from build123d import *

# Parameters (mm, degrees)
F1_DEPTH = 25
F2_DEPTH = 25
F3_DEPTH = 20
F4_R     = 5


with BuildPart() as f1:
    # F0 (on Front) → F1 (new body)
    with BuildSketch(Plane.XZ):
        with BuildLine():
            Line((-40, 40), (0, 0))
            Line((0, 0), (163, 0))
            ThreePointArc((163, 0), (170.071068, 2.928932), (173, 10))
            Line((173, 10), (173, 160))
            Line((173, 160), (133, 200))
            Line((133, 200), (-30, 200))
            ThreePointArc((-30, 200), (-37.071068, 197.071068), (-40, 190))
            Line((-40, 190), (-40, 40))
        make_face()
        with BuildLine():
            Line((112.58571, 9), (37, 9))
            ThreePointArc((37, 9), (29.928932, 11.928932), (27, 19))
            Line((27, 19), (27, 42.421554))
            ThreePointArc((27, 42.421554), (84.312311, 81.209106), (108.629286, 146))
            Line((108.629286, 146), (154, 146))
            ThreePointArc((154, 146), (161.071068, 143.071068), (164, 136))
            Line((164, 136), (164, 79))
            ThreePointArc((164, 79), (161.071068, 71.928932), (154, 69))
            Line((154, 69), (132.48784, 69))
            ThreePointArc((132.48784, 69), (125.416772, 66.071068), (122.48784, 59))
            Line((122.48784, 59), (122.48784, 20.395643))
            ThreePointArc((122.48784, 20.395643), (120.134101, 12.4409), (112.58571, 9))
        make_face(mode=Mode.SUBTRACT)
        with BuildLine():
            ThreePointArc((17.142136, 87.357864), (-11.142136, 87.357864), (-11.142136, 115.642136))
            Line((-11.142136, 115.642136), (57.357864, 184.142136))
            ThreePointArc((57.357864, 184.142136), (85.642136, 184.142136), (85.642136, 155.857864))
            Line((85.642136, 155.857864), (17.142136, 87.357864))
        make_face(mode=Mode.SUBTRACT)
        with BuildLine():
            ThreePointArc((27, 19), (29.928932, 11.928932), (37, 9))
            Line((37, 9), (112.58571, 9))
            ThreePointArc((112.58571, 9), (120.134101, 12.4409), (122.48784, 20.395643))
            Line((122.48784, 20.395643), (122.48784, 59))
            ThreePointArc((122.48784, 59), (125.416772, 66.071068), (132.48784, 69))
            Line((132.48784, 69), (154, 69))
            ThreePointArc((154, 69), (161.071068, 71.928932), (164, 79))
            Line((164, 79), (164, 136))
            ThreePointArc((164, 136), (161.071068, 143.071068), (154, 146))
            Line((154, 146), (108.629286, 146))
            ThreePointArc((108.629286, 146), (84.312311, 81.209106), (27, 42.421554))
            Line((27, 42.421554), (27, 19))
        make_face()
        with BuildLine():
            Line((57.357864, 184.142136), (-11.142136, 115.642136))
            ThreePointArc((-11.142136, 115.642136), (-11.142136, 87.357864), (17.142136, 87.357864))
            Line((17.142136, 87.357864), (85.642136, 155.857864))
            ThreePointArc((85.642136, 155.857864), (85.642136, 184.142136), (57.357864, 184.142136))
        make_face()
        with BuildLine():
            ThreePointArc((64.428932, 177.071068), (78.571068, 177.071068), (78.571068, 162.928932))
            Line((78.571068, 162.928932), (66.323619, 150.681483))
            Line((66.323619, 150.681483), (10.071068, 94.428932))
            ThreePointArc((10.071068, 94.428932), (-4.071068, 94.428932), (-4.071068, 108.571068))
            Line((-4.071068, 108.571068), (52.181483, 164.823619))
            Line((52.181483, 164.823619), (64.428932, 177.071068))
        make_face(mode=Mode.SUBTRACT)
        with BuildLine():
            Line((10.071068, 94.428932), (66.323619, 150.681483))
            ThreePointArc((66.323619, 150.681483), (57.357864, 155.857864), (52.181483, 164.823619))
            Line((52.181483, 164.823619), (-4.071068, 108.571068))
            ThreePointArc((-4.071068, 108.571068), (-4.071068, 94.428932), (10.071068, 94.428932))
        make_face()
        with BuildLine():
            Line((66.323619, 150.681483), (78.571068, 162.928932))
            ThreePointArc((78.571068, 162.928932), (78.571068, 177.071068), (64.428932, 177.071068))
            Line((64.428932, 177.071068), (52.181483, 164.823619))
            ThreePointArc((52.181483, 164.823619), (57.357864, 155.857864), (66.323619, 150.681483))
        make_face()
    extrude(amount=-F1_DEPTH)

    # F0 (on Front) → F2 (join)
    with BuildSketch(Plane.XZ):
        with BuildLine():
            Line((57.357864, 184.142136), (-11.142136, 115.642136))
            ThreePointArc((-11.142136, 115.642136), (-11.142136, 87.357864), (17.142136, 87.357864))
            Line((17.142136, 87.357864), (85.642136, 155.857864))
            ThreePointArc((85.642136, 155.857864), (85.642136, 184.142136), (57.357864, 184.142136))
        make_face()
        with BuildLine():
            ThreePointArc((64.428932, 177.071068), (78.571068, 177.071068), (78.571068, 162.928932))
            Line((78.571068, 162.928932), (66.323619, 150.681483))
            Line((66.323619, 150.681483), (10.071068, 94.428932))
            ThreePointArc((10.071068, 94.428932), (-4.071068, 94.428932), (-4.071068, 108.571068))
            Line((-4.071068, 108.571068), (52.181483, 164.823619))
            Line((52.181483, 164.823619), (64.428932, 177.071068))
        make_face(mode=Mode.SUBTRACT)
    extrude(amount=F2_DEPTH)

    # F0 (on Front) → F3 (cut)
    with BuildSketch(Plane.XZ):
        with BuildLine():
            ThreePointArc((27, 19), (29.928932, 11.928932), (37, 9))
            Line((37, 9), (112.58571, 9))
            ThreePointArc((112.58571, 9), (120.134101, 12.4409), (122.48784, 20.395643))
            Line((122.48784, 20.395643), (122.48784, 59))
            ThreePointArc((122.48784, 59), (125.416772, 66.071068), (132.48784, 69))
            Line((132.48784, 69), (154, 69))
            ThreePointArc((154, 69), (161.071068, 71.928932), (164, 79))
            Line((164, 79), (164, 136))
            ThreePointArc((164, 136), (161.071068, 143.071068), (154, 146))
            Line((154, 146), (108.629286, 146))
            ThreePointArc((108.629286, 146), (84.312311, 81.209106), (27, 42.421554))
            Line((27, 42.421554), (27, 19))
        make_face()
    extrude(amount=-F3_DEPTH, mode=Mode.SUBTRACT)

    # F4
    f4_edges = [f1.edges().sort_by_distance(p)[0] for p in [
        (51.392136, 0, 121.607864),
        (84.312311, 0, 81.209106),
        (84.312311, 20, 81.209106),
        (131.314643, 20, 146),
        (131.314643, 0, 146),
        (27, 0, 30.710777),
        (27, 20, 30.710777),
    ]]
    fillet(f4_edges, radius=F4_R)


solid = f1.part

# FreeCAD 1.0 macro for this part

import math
import FreeCAD as App
import Part
import Sketcher
Q = App.Units.Quantity


def edges_at(feature, points):
    """Names of the edges that pass closest to the given points."""
    edges = feature.Shape.Edges
    near = lambda p: min(range(len(edges)), key=lambda i: edges[i].distToShape(Part.Vertex(*p))[0])
    return sorted({f"Edge{near(p) + 1}" for p in points})

doc = App.newDocument("Part")
body = doc.addObject("PartDesign::Body", "Body")

# Sketch on XZ plane
sketch1 = body.newObject("Sketcher::SketchObject", "Sketch")
sketch1.AttachmentSupport = (doc.getObject("XZ_Plane"), [""])
sketch1.MapMode = "FlatFace"
sketch1.addGeometry(Part.LineSegment(App.Vector(-40, 40, 0), App.Vector(0, 0, 0)), False)
sketch1.addGeometry(Part.LineSegment(App.Vector(0, 0, 0), App.Vector(163, 0, 0)), False)
sketch1.addGeometry(Part.ArcOfCircle(Part.Circle(App.Vector(163, 10, 0), App.Vector(0, 0, 1), 10), math.radians(-90), math.radians(0)), False)
sketch1.addGeometry(Part.LineSegment(App.Vector(173, 10, 0), App.Vector(173, 160, 0)), False)
sketch1.addGeometry(Part.LineSegment(App.Vector(173, 160, 0), App.Vector(133, 200, 0)), False)
sketch1.addGeometry(Part.LineSegment(App.Vector(133, 200, 0), App.Vector(-30, 200, 0)), False)
sketch1.addGeometry(Part.ArcOfCircle(Part.Circle(App.Vector(-30, 190, 0), App.Vector(0, 0, 1), 10), math.radians(90), math.radians(180)), False)
sketch1.addGeometry(Part.LineSegment(App.Vector(-40, 190, 0), App.Vector(-40, 40, 0)), False)
sketch1.addConstraint(Sketcher.Constraint("Coincident", 0, 2, 1, 1))
sketch1.addConstraint(Sketcher.Constraint("Tangent", 1, 2, 2, 1))
sketch1.addConstraint(Sketcher.Constraint("Tangent", 2, 2, 3, 1))
sketch1.addConstraint(Sketcher.Constraint("Coincident", 3, 2, 4, 1))
sketch1.addConstraint(Sketcher.Constraint("Coincident", 4, 2, 5, 1))
sketch1.addConstraint(Sketcher.Constraint("Tangent", 5, 2, 6, 1))
sketch1.addConstraint(Sketcher.Constraint("Tangent", 6, 2, 7, 1))
sketch1.addConstraint(Sketcher.Constraint("Coincident", 7, 2, 0, 1))
sketch1.addConstraint(Sketcher.Constraint("Horizontal", 1))
sketch1.addConstraint(Sketcher.Constraint("Vertical", 3))
sketch1.addConstraint(Sketcher.Constraint("Horizontal", 5))
sketch1.addConstraint(Sketcher.Constraint("Vertical", 7))
sketch1.addConstraint(Sketcher.Constraint("Coincident", 0, 2, -1, 1))
sketch1.addConstraint(Sketcher.Constraint("Equal", 2, 6))
sketch1.addConstraint(Sketcher.Constraint("Parallel", 0, 4))
sketch1.addConstraint(Sketcher.Constraint("Equal", 1, 5))
sketch1.addConstraint(Sketcher.Constraint("Radius", 2, 9.999999))
sketch1.addConstraint(Sketcher.Constraint("DistanceX", 1, 1, 1, 2, 163.0))
sketch1.addConstraint(Sketcher.Constraint("DistanceY", 3, 1, 3, 2, 150.0))
sketch1.addConstraint(Sketcher.Constraint("Angle", 0, Q("-45 deg")))
sketch1.addConstraint(Sketcher.Constraint("DistanceX", 6, 3, -1, 1, 30.000001))
pad1 = body.newObject("PartDesign::Pad", "Pad")
pad1.Profile = sketch1
pad1.Length = 25
pad1.Reversed = True

# Sketch on XZ plane
sketch2 = body.newObject("Sketcher::SketchObject", "Sketch001")
sketch2.AttachmentSupport = (doc.getObject("XZ_Plane"), [""])
sketch2.MapMode = "FlatFace"
sketch2.addGeometry(Part.LineSegment(App.Vector(57, 184, 0), App.Vector(-11, 116, 0)), False)
sketch2.addGeometry(Part.ArcOfCircle(Part.Circle(App.Vector(3, 102, 0), App.Vector(0, 0, 1), 20), math.radians(135), math.radians(315)), False)
sketch2.addGeometry(Part.LineSegment(App.Vector(17, 87, 0), App.Vector(86, 156, 0)), False)
sketch2.addGeometry(Part.ArcOfCircle(Part.Circle(App.Vector(72, 170, 0), App.Vector(0, 0, 1), 20), math.radians(-45), math.radians(135)), False)
sketch2.addGeometry(Part.LineSegment(App.Vector(-4, 109, 0), App.Vector(64, 177, 0)), False)
sketch2.addGeometry(Part.ArcOfCircle(Part.Circle(App.Vector(72, 170, 0), App.Vector(0, 0, 1), 10), math.radians(-45), math.radians(135)), False)
sketch2.addGeometry(Part.LineSegment(App.Vector(79, 163, 0), App.Vector(10, 94, 0)), False)
sketch2.addGeometry(Part.ArcOfCircle(Part.Circle(App.Vector(3, 102, 0), App.Vector(0, 0, 1), 10), math.radians(135), math.radians(315)), False)
sketch2.addConstraint(Sketcher.Constraint("Tangent", 0, 2, 1, 1))
sketch2.addConstraint(Sketcher.Constraint("Tangent", 1, 2, 2, 1))
sketch2.addConstraint(Sketcher.Constraint("Tangent", 2, 2, 3, 1))
sketch2.addConstraint(Sketcher.Constraint("Tangent", 3, 2, 0, 1))
sketch2.addConstraint(Sketcher.Constraint("Tangent", 4, 2, 5, 2))
sketch2.addConstraint(Sketcher.Constraint("Tangent", 5, 1, 6, 1))
sketch2.addConstraint(Sketcher.Constraint("Tangent", 6, 2, 7, 2))
sketch2.addConstraint(Sketcher.Constraint("Tangent", 7, 1, 4, 1))
sketch2.addConstraint(Sketcher.Constraint("Coincident", 5, 3, 3, 3))
sketch2.addConstraint(Sketcher.Constraint("Coincident", 7, 3, 1, 3))
sketch2.addConstraint(Sketcher.Constraint("Equal", 1, 3))
sketch2.addConstraint(Sketcher.Constraint("Equal", 5, 7))
sketch2.addConstraint(Sketcher.Constraint("Radius", 1, 20.000001))
sketch2.addConstraint(Sketcher.Constraint("Radius", 5, 10.0))
sketch2.addConstraint(Sketcher.Constraint("Angle", 0, Q("-135 deg")))
sketch2.addConstraint(Sketcher.Constraint("DistanceX", -1, 1, 1, 3, 3.0))
sketch2.addConstraint(Sketcher.Constraint("DistanceY", -1, 1, 3, 3, 170.0))
sketch2.addConstraint(Sketcher.Constraint("DistanceY", -1, 1, 1, 3, 101.5))
pad2 = body.newObject("PartDesign::Pad", "Pad001")
pad2.Profile = sketch2
pad2.Length = 25

# Sketch on XZ plane
sketch3 = body.newObject("Sketcher::SketchObject", "Sketch002")
sketch3.AttachmentSupport = (doc.getObject("XZ_Plane"), [""])
sketch3.MapMode = "FlatFace"
sketch3.addGeometry(Part.ArcOfCircle(Part.Circle(App.Vector(36.999999, 18.999999, 0), App.Vector(0, 0, 1), 9.999999), math.radians(179.999996), math.radians(270.000004)), False)
sketch3.addGeometry(Part.LineSegment(App.Vector(37, 9, 0), App.Vector(112.58571, 9, 0)), False)
sketch3.addGeometry(Part.ArcOfCircle(Part.Circle(App.Vector(112.58571, 19, 0), App.Vector(0, 0, 1), 10), math.radians(-90), math.radians(8.022636)), False)
sketch3.addGeometry(Part.LineSegment(App.Vector(122.48784, 20.395643, 0), App.Vector(122.48784, 59, 0)), False)
sketch3.addGeometry(Part.ArcOfCircle(Part.Circle(App.Vector(132.487839, 59.000001, 0), App.Vector(0, 0, 1), 9.999999), math.radians(89.999996), math.radians(180.000004)), False)
sketch3.addGeometry(Part.LineSegment(App.Vector(132.48784, 69, 0), App.Vector(154, 69, 0)), False)
sketch3.addGeometry(Part.ArcOfCircle(Part.Circle(App.Vector(154.000001, 78.999999, 0), App.Vector(0, 0, 1), 9.999999), math.radians(-90.000004), math.radians(0.000004)), False)
sketch3.addGeometry(Part.LineSegment(App.Vector(164, 79, 0), App.Vector(164, 136, 0)), False)
sketch3.addGeometry(Part.ArcOfCircle(Part.Circle(App.Vector(154.000001, 136.000001, 0), App.Vector(0, 0, 1), 9.999999), math.radians(-0.000004), math.radians(90.000004)), False)
sketch3.addGeometry(Part.LineSegment(App.Vector(154, 146, 0), App.Vector(108.629286, 146, 0)), False)
sketch3.addGeometry(Part.ArcOfCircle(Part.Circle(App.Vector(-5.224485, 151.772288, 0), App.Vector(0, 0, 1), 114.000002), math.radians(-73.580322), math.radians(-2.902361)), False)
sketch3.addGeometry(Part.LineSegment(App.Vector(27, 42.421554, 0), App.Vector(27, 19, 0)), False)
sketch3.addConstraint(Sketcher.Constraint("Coincident", 0, 2, 1, 1))
sketch3.addConstraint(Sketcher.Constraint("Coincident", 1, 2, 2, 1))
sketch3.addConstraint(Sketcher.Constraint("Coincident", 2, 2, 3, 1))
sketch3.addConstraint(Sketcher.Constraint("Coincident", 3, 2, 4, 2))
sketch3.addConstraint(Sketcher.Constraint("Coincident", 4, 1, 5, 1))
sketch3.addConstraint(Sketcher.Constraint("Coincident", 5, 2, 6, 1))
sketch3.addConstraint(Sketcher.Constraint("Coincident", 6, 2, 7, 1))
sketch3.addConstraint(Sketcher.Constraint("Coincident", 7, 2, 8, 1))
sketch3.addConstraint(Sketcher.Constraint("Coincident", 8, 2, 9, 1))
sketch3.addConstraint(Sketcher.Constraint("Coincident", 9, 2, 10, 2))
sketch3.addConstraint(Sketcher.Constraint("Coincident", 10, 1, 11, 1))
sketch3.addConstraint(Sketcher.Constraint("Coincident", 11, 2, 0, 1))
sketch3.addConstraint(Sketcher.Constraint("Horizontal", 1))
sketch3.addConstraint(Sketcher.Constraint("Vertical", 3))
sketch3.addConstraint(Sketcher.Constraint("Horizontal", 5))
sketch3.addConstraint(Sketcher.Constraint("Vertical", 7))
sketch3.addConstraint(Sketcher.Constraint("Horizontal", 9))
sketch3.addConstraint(Sketcher.Constraint("Vertical", 11))
sketch3.addConstraint(Sketcher.Constraint("Radius", 0, 9.999999))
sketch3.addConstraint(Sketcher.Constraint("Radius", 2, 10.0))
sketch3.addConstraint(Sketcher.Constraint("Radius", 4, 9.999999))
sketch3.addConstraint(Sketcher.Constraint("Radius", 6, 9.999999))
sketch3.addConstraint(Sketcher.Constraint("Radius", 8, 9.999999))
sketch3.addConstraint(Sketcher.Constraint("Radius", 10, 114.000002))
sketch3.addConstraint(Sketcher.Constraint("DistanceY", 7, 1, 7, 2, 57.0))
sketch3.addConstraint(Sketcher.Constraint("DistanceX", -1, 1, 0, 3, 36.999999))
sketch3.addConstraint(Sketcher.Constraint("DistanceY", -1, 1, 0, 3, 18.999999))
sketch3.addConstraint(Sketcher.Constraint("DistanceY", -1, 1, 4, 3, 59.000001))
sketch3.addConstraint(Sketcher.Constraint("DistanceX", -1, 1, 6, 3, 154.000001))
sketch3.addConstraint(Sketcher.Constraint("DistanceY", -1, 1, 8, 3, 136.000001))
sketch3.addConstraint(Sketcher.Constraint("DistanceX", -1, 1, 0, 2, 37.0))
sketch3.addConstraint(Sketcher.Constraint("DistanceY", -1, 1, 3, 2, 59.0))
sketch3.addConstraint(Sketcher.Constraint("DistanceX", -1, 1, 5, 2, 154.0))
sketch3.addConstraint(Sketcher.Constraint("DistanceY", -1, 1, 6, 2, 79.0))
sketch3.addConstraint(Sketcher.Constraint("DistanceX", -1, 1, 8, 2, 154.0))
sketch3.addConstraint(Sketcher.Constraint("DistanceY", -1, 1, 11, 2, 19.0))
sketch3.addConstraint(Sketcher.Constraint("DistanceX", 3, 2, 4, 1, 10.0))
sketch3.addConstraint(Sketcher.Constraint("DistanceX", 1, 1, 1, 2, 75.58571))
sketch3.addConstraint(Sketcher.Constraint("DistanceX", 5, 1, 5, 2, 21.51216))
sketch3.addConstraint(Sketcher.Constraint("DistanceX", 9, 2, 9, 1, 45.370714))
sketch3.addConstraint(Sketcher.Constraint("DistanceY", 3, 1, 3, 2, 38.604357))
sketch3.addConstraint(Sketcher.Constraint("DistanceY", 11, 2, 11, 1, 23.421554))
pocket1 = body.newObject("PartDesign::Pocket", "Pocket")
pocket1.Profile = sketch3
pocket1.Length = 20
doc.recompute()

fillet = body.newObject("PartDesign::Fillet", "Fillet")
fillet.Base = (pocket1, edges_at(pocket1, [
    (51.392, 0, 121.608),
    (84.312, 0, 81.209),
    (84.312, 20, 81.209),
    (131.315, 20, 146),
    (131.315, 0, 146),
    (27, 0, 30.711),
    (27, 20, 30.711),
]))
fillet.Radius = 5

doc.recompute()
